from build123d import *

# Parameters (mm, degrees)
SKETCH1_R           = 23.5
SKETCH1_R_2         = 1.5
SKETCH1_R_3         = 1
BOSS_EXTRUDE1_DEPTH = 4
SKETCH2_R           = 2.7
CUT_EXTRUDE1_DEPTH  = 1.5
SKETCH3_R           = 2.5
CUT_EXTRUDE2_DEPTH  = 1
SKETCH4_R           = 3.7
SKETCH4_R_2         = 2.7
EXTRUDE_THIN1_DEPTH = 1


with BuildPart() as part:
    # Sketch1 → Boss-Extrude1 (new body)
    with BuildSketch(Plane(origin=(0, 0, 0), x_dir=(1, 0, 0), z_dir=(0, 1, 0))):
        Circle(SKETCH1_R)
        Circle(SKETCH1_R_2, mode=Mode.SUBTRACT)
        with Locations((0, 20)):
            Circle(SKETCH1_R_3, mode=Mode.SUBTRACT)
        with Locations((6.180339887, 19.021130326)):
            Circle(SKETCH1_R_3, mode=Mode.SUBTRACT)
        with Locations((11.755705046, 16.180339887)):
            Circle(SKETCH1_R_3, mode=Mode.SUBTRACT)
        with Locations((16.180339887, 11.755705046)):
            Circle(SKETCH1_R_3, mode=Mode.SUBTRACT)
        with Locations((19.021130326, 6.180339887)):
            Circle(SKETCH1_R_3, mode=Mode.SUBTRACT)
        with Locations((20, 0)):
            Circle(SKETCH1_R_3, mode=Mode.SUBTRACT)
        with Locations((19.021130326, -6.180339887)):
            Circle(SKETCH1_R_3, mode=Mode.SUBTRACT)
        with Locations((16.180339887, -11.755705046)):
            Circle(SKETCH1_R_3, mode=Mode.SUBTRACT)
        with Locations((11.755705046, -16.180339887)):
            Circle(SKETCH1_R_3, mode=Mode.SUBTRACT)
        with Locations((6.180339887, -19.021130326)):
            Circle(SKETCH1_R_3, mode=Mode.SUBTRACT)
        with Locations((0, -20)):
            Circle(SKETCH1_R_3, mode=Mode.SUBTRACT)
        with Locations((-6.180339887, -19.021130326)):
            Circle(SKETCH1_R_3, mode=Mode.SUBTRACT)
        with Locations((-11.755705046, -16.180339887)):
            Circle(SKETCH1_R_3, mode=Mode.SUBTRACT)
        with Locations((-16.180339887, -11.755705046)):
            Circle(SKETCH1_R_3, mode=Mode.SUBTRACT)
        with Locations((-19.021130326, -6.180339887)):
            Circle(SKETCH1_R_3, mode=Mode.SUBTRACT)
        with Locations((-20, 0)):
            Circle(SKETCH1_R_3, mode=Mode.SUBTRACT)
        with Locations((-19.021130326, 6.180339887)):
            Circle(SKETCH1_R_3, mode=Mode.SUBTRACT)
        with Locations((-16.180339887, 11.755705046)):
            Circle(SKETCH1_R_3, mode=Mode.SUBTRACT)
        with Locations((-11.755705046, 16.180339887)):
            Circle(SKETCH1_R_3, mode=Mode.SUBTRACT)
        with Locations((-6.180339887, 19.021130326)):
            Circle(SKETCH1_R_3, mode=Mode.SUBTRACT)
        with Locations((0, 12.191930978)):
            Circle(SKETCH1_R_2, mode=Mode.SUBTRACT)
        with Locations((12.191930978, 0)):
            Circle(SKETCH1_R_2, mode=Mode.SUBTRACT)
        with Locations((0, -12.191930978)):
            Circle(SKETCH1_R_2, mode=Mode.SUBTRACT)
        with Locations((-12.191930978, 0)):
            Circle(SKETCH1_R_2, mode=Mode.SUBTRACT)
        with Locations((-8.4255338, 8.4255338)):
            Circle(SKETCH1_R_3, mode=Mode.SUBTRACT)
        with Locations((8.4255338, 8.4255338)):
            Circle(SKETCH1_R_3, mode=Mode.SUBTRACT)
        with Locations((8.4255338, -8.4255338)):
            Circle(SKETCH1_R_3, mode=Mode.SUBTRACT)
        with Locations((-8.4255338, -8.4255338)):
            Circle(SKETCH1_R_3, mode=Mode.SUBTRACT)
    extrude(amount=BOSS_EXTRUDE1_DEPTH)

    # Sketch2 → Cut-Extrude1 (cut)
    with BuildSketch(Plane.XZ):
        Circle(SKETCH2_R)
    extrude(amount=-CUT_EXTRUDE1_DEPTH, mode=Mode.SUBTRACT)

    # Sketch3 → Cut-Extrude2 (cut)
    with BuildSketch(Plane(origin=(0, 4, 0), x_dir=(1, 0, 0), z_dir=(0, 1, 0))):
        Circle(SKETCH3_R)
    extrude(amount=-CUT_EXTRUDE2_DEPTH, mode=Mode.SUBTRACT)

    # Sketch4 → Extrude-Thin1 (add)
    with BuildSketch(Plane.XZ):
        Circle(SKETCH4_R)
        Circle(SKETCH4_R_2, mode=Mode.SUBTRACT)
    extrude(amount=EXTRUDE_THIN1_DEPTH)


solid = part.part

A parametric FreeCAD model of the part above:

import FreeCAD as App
import Part
import Sketcher

doc = App.newDocument("Part")
body = doc.addObject("PartDesign::Body", "Body")

# Sketch on XZ plane
sketch1 = doc.addObject("Sketcher::SketchObject", "Sketch")
body.addObject(sketch1)
sketch1.AttachmentSupport = (doc.XZ_Plane, [""])
sketch1.MapMode = "FlatFace"
sketch1.addGeometry([
    Part.Circle(App.Vector(0, 0, 0), App.Vector(0, 0, 1), 23.5),  # 0
    Part.Circle(App.Vector(-11.8, 16.2, 0), App.Vector(0, 0, 1), 1),  # 1
    Part.Circle(App.Vector(-16.2, 11.8, 0), App.Vector(0, 0, 1), 1),  # 2
    Part.Circle(App.Vector(-6.2, 19, 0), App.Vector(0, 0, 1), 1),  # 3
    Part.Circle(App.Vector(-19, 6.2, 0), App.Vector(0, 0, 1), 1),  # 4
    Part.Circle(App.Vector(-8.4, 8.4, 0), App.Vector(0, 0, 1), 1),  # 5
    Part.Circle(App.Vector(0, 20, 0), App.Vector(0, 0, 1), 1),  # 6
    Part.Circle(App.Vector(6.2, 19, 0), App.Vector(0, 0, 1), 1),  # 7
    Part.Circle(App.Vector(0, 12.2, 0), App.Vector(0, 0, 1), 1.5),  # 8
    Part.Circle(App.Vector(11.8, 16.2, 0), App.Vector(0, 0, 1), 1),  # 9
    Part.Circle(App.Vector(16.2, 11.8, 0), App.Vector(0, 0, 1), 1),  # 10
    Part.Circle(App.Vector(8.4, 8.4, 0), App.Vector(0, 0, 1), 1),  # 11
    Part.Circle(App.Vector(19, 6.2, 0), App.Vector(0, 0, 1), 1),  # 12
    Part.Circle(App.Vector(-20, 0, 0), App.Vector(0, 0, 1), 1),  # 13
    Part.Circle(App.Vector(-12.2, 0, 0), App.Vector(0, 0, 1), 1.5),  # 14
    Part.Circle(App.Vector(-19, -6.2, 0), App.Vector(0, 0, 1), 1),  # 15
    Part.Circle(App.Vector(-8.4, -8.4, 0), App.Vector(0, 0, 1), 1),  # 16
    Part.Circle(App.Vector(-16.2, -11.8, 0), App.Vector(0, 0, 1), 1),  # 17
    Part.Circle(App.Vector(-11.8, -16.2, 0), App.Vector(0, 0, 1), 1),  # 18
    Part.Circle(App.Vector(-6.2, -19, 0), App.Vector(0, 0, 1), 1),  # 19
    Part.Circle(App.Vector(0, 0, 0), App.Vector(0, 0, 1), 1.5),  # 20
    Part.Circle(App.Vector(8.4, -8.4, 0), App.Vector(0, 0, 1), 1),  # 21
    Part.Circle(App.Vector(12.2, 0, 0), App.Vector(0, 0, 1), 1.5),  # 22
    Part.Circle(App.Vector(20, 0, 0), App.Vector(0, 0, 1), 1),  # 23
    Part.Circle(App.Vector(19, -6.2, 0), App.Vector(0, 0, 1), 1),  # 24
    Part.Circle(App.Vector(0, -12.2, 0), App.Vector(0, 0, 1), 1.5),  # 25
    Part.Circle(App.Vector(0, -20, 0), App.Vector(0, 0, 1), 1),  # 26
    Part.Circle(App.Vector(6.2, -19, 0), App.Vector(0, 0, 1), 1),  # 27
    Part.Circle(App.Vector(16.2, -11.8, 0), App.Vector(0, 0, 1), 1),  # 28
    Part.Circle(App.Vector(11.8, -16.2, 0), App.Vector(0, 0, 1), 1),  # 29
], False)
sketch1.addConstraint([
    Sketcher.Constraint("Coincident", 0, 3, -1, 1),
    Sketcher.Constraint("Coincident", 20, 3, -1, 1),
    Sketcher.Constraint("Equal", 1, 2),
    Sketcher.Constraint("Equal", 2, 3),
    Sketcher.Constraint("Equal", 3, 4),
    Sketcher.Constraint("Equal", 4, 5),
    Sketcher.Constraint("Equal", 5, 6),
    Sketcher.Constraint("Equal", 6, 7),
    Sketcher.Constraint("Equal", 7, 9),
    Sketcher.Constraint("Equal", 9, 10),
    Sketcher.Constraint("Equal", 10, 11),
    Sketcher.Constraint("Equal", 11, 12),
    Sketcher.Constraint("Equal", 12, 13),
    Sketcher.Constraint("Equal", 8, 14),
    Sketcher.Constraint("Equal", 13, 15),
    Sketcher.Constraint("Equal", 15, 16),
    Sketcher.Constraint("Equal", 16, 17),
    Sketcher.Constraint("Equal", 17, 18),
    Sketcher.Constraint("Equal", 18, 19),
    Sketcher.Constraint("Equal", 14, 20),
    Sketcher.Constraint("Equal", 19, 21),
    Sketcher.Constraint("Equal", 20, 22),
    Sketcher.Constraint("Equal", 21, 23),
    Sketcher.Constraint("Equal", 23, 24),
    Sketcher.Constraint("Equal", 22, 25),
    Sketcher.Constraint("Equal", 24, 26),
    Sketcher.Constraint("Equal", 26, 27),
    Sketcher.Constraint("Equal", 27, 28),
    Sketcher.Constraint("Equal", 28, 29),
    Sketcher.Constraint("Symmetric", 12, 3, 15, 3, -1, 1),
    Sketcher.Constraint("Symmetric", 11, 3, 16, 3, -1, 1),
    Sketcher.Constraint("Symmetric", 10, 3, 17, 3, -1, 1),
    Sketcher.Constraint("Symmetric", 9, 3, 18, 3, -1, 1),
    Sketcher.Constraint("Symmetric", 7, 3, 19, 3, -1, 1),
    Sketcher.Constraint("Symmetric", 5, 3, 21, 3, -1, 1),
    Sketcher.Constraint("Symmetric", 14, 3, 22, 3, -1, 1),
    Sketcher.Constraint("Symmetric", 13, 3, 23, 3, -1, 1),
    Sketcher.Constraint("Symmetric", 4, 3, 24, 3, -1, 1),
    Sketcher.Constraint("Symmetric", 8, 3, 25, 3, -1, 1),
    Sketcher.Constraint("Symmetric", 6, 3, 26, 3, -1, 1),
    Sketcher.Constraint("Symmetric", 3, 3, 27, 3, -1, 1),
    Sketcher.Constraint("Symmetric", 2, 3, 28, 3, -1, 1),
    Sketcher.Constraint("Symmetric", 1, 3, 29, 3, -1, 1),
    Sketcher.Constraint("Symmetric", 3, 3, 7, 3, -2),
    Sketcher.Constraint("Symmetric", 1, 3, 9, 3, -2),
    Sketcher.Constraint("Symmetric", 2, 3, 10, 3, -2),
    Sketcher.Constraint("Symmetric", 5, 3, 11, 3, -2),
    Sketcher.Constraint("Symmetric", 4, 3, 12, 3, -2),
    Sketcher.Constraint("PointOnObject", 6, 3, -2),
    Sketcher.Constraint("PointOnObject", 8, 3, -2),
    Sketcher.Constraint("PointOnObject", 13, 3, -1),
    Sketcher.Constraint("PointOnObject", 14, 3, -1),
    Sketcher.Constraint("Diameter", 0, 47.0),
    Sketcher.Constraint("Diameter", 1, 2.0),
    Sketcher.Constraint("Diameter", 8, 3.0),
    Sketcher.Constraint("DistanceY", -1, 1, 6, 3, 20.0),
    Sketcher.Constraint("DistanceX", 13, 3, -1, 1, 20.0),
    Sketcher.Constraint("DistanceX", 2, 3, 3, 3, 10.0),
    Sketcher.Constraint("DistanceY", 4, 3, 1, 3, 10.0),
    Sketcher.Constraint("DistanceY", 8, 3, 3, 3, 6.829199),
    Sketcher.Constraint("DistanceX", 4, 3, 14, 3, 6.829199),
    Sketcher.Constraint("DistanceY", -1, 1, 1, 3, 16.18034),
    Sketcher.Constraint("DistanceX", 2, 3, -1, 1, 16.18034),
    Sketcher.Constraint("DistanceY", -1, 1, 3, 3, 19.02113),
    Sketcher.Constraint("DistanceX", 4, 3, -1, 1, 19.02113),
    Sketcher.Constraint("DistanceX", 1, 3, 5, 3, 3.330171),
    Sketcher.Constraint("DistanceY", 5, 3, 2, 3, 3.330171),
    Sketcher.Constraint("DistanceX", 1, 3, -1, 1, 11.755705),
    Sketcher.Constraint("DistanceY", -1, 1, 2, 3, 11.755705),
])
pad1 = doc.addObject("PartDesign::Pad", "Pad")
body.addObject(pad1)
pad1.Profile = sketch1
pad1.Length = 4
pad1.Reversed = True

# Sketch on XZ plane
sketch2 = doc.addObject("Sketcher::SketchObject", "Sketch001")
body.addObject(sketch2)
sketch2.AttachmentSupport = (doc.XZ_Plane, [""])
sketch2.MapMode = "FlatFace"
sketch2.addGeometry(Part.Circle(App.Vector(0, 0, 0), App.Vector(0, 0, 1), 2.7), False)
sketch2.addConstraint([
    Sketcher.Constraint("Coincident", 0, 3, -1, 1),
    Sketcher.Constraint("Diameter", 0, 5.4),
])
pocket1 = doc.addObject("PartDesign::Pocket", "Pocket")
body.addObject(pocket1)
pocket1.Profile = sketch2
pocket1.Length = 1.5

# Sketch on XZ plane
sketch3 = doc.addObject("Sketcher::SketchObject", "Sketch002")
body.addObject(sketch3)
sketch3.AttachmentSupport = (doc.XZ_Plane, [""])
sketch3.MapMode = "FlatFace"
sketch3.AttachmentOffset = App.Placement(App.Vector(0, 0, -4), App.Rotation())
sketch3.addGeometry(Part.Circle(App.Vector(0, 0, 0), App.Vector(0, 0, 1), 2.5), False)
sketch3.addConstraint([
    Sketcher.Constraint("Coincident", 0, 3, -1, 1),
    Sketcher.Constraint("Diameter", 0, 5.0),
])
pocket2 = doc.addObject("PartDesign::Pocket", "Pocket001")
body.addObject(pocket2)
pocket2.Profile = sketch3
pocket2.Length = 1
pocket2.Reversed = True

# Sketch on XZ plane
sketch4 = doc.addObject("Sketcher::SketchObject", "Sketch003")
body.addObject(sketch4)
sketch4.AttachmentSupport = (doc.XZ_Plane, [""])
sketch4.MapMode = "FlatFace"
sketch4.addGeometry([
    Part.Circle(App.Vector(0, 0, 0), App.Vector(0, 0, 1), 3.7),
    Part.Circle(App.Vector(0, 0, 0), App.Vector(0, 0, 1), 2.7),
], False)
sketch4.addConstraint([
    Sketcher.Constraint("Coincident", 0, 3, -1, 1),
    Sketcher.Constraint("Coincident", 1, 3, -1, 1),
    Sketcher.Constraint("Diameter", 0, 7.4),
    Sketcher.Constraint("Diameter", 1, 5.4),
])
pad2 = doc.addObject("PartDesign::Pad", "Pad001")
body.addObject(pad2)
pad2.Profile = sketch4
pad2.Length = 1

doc.recompute()
